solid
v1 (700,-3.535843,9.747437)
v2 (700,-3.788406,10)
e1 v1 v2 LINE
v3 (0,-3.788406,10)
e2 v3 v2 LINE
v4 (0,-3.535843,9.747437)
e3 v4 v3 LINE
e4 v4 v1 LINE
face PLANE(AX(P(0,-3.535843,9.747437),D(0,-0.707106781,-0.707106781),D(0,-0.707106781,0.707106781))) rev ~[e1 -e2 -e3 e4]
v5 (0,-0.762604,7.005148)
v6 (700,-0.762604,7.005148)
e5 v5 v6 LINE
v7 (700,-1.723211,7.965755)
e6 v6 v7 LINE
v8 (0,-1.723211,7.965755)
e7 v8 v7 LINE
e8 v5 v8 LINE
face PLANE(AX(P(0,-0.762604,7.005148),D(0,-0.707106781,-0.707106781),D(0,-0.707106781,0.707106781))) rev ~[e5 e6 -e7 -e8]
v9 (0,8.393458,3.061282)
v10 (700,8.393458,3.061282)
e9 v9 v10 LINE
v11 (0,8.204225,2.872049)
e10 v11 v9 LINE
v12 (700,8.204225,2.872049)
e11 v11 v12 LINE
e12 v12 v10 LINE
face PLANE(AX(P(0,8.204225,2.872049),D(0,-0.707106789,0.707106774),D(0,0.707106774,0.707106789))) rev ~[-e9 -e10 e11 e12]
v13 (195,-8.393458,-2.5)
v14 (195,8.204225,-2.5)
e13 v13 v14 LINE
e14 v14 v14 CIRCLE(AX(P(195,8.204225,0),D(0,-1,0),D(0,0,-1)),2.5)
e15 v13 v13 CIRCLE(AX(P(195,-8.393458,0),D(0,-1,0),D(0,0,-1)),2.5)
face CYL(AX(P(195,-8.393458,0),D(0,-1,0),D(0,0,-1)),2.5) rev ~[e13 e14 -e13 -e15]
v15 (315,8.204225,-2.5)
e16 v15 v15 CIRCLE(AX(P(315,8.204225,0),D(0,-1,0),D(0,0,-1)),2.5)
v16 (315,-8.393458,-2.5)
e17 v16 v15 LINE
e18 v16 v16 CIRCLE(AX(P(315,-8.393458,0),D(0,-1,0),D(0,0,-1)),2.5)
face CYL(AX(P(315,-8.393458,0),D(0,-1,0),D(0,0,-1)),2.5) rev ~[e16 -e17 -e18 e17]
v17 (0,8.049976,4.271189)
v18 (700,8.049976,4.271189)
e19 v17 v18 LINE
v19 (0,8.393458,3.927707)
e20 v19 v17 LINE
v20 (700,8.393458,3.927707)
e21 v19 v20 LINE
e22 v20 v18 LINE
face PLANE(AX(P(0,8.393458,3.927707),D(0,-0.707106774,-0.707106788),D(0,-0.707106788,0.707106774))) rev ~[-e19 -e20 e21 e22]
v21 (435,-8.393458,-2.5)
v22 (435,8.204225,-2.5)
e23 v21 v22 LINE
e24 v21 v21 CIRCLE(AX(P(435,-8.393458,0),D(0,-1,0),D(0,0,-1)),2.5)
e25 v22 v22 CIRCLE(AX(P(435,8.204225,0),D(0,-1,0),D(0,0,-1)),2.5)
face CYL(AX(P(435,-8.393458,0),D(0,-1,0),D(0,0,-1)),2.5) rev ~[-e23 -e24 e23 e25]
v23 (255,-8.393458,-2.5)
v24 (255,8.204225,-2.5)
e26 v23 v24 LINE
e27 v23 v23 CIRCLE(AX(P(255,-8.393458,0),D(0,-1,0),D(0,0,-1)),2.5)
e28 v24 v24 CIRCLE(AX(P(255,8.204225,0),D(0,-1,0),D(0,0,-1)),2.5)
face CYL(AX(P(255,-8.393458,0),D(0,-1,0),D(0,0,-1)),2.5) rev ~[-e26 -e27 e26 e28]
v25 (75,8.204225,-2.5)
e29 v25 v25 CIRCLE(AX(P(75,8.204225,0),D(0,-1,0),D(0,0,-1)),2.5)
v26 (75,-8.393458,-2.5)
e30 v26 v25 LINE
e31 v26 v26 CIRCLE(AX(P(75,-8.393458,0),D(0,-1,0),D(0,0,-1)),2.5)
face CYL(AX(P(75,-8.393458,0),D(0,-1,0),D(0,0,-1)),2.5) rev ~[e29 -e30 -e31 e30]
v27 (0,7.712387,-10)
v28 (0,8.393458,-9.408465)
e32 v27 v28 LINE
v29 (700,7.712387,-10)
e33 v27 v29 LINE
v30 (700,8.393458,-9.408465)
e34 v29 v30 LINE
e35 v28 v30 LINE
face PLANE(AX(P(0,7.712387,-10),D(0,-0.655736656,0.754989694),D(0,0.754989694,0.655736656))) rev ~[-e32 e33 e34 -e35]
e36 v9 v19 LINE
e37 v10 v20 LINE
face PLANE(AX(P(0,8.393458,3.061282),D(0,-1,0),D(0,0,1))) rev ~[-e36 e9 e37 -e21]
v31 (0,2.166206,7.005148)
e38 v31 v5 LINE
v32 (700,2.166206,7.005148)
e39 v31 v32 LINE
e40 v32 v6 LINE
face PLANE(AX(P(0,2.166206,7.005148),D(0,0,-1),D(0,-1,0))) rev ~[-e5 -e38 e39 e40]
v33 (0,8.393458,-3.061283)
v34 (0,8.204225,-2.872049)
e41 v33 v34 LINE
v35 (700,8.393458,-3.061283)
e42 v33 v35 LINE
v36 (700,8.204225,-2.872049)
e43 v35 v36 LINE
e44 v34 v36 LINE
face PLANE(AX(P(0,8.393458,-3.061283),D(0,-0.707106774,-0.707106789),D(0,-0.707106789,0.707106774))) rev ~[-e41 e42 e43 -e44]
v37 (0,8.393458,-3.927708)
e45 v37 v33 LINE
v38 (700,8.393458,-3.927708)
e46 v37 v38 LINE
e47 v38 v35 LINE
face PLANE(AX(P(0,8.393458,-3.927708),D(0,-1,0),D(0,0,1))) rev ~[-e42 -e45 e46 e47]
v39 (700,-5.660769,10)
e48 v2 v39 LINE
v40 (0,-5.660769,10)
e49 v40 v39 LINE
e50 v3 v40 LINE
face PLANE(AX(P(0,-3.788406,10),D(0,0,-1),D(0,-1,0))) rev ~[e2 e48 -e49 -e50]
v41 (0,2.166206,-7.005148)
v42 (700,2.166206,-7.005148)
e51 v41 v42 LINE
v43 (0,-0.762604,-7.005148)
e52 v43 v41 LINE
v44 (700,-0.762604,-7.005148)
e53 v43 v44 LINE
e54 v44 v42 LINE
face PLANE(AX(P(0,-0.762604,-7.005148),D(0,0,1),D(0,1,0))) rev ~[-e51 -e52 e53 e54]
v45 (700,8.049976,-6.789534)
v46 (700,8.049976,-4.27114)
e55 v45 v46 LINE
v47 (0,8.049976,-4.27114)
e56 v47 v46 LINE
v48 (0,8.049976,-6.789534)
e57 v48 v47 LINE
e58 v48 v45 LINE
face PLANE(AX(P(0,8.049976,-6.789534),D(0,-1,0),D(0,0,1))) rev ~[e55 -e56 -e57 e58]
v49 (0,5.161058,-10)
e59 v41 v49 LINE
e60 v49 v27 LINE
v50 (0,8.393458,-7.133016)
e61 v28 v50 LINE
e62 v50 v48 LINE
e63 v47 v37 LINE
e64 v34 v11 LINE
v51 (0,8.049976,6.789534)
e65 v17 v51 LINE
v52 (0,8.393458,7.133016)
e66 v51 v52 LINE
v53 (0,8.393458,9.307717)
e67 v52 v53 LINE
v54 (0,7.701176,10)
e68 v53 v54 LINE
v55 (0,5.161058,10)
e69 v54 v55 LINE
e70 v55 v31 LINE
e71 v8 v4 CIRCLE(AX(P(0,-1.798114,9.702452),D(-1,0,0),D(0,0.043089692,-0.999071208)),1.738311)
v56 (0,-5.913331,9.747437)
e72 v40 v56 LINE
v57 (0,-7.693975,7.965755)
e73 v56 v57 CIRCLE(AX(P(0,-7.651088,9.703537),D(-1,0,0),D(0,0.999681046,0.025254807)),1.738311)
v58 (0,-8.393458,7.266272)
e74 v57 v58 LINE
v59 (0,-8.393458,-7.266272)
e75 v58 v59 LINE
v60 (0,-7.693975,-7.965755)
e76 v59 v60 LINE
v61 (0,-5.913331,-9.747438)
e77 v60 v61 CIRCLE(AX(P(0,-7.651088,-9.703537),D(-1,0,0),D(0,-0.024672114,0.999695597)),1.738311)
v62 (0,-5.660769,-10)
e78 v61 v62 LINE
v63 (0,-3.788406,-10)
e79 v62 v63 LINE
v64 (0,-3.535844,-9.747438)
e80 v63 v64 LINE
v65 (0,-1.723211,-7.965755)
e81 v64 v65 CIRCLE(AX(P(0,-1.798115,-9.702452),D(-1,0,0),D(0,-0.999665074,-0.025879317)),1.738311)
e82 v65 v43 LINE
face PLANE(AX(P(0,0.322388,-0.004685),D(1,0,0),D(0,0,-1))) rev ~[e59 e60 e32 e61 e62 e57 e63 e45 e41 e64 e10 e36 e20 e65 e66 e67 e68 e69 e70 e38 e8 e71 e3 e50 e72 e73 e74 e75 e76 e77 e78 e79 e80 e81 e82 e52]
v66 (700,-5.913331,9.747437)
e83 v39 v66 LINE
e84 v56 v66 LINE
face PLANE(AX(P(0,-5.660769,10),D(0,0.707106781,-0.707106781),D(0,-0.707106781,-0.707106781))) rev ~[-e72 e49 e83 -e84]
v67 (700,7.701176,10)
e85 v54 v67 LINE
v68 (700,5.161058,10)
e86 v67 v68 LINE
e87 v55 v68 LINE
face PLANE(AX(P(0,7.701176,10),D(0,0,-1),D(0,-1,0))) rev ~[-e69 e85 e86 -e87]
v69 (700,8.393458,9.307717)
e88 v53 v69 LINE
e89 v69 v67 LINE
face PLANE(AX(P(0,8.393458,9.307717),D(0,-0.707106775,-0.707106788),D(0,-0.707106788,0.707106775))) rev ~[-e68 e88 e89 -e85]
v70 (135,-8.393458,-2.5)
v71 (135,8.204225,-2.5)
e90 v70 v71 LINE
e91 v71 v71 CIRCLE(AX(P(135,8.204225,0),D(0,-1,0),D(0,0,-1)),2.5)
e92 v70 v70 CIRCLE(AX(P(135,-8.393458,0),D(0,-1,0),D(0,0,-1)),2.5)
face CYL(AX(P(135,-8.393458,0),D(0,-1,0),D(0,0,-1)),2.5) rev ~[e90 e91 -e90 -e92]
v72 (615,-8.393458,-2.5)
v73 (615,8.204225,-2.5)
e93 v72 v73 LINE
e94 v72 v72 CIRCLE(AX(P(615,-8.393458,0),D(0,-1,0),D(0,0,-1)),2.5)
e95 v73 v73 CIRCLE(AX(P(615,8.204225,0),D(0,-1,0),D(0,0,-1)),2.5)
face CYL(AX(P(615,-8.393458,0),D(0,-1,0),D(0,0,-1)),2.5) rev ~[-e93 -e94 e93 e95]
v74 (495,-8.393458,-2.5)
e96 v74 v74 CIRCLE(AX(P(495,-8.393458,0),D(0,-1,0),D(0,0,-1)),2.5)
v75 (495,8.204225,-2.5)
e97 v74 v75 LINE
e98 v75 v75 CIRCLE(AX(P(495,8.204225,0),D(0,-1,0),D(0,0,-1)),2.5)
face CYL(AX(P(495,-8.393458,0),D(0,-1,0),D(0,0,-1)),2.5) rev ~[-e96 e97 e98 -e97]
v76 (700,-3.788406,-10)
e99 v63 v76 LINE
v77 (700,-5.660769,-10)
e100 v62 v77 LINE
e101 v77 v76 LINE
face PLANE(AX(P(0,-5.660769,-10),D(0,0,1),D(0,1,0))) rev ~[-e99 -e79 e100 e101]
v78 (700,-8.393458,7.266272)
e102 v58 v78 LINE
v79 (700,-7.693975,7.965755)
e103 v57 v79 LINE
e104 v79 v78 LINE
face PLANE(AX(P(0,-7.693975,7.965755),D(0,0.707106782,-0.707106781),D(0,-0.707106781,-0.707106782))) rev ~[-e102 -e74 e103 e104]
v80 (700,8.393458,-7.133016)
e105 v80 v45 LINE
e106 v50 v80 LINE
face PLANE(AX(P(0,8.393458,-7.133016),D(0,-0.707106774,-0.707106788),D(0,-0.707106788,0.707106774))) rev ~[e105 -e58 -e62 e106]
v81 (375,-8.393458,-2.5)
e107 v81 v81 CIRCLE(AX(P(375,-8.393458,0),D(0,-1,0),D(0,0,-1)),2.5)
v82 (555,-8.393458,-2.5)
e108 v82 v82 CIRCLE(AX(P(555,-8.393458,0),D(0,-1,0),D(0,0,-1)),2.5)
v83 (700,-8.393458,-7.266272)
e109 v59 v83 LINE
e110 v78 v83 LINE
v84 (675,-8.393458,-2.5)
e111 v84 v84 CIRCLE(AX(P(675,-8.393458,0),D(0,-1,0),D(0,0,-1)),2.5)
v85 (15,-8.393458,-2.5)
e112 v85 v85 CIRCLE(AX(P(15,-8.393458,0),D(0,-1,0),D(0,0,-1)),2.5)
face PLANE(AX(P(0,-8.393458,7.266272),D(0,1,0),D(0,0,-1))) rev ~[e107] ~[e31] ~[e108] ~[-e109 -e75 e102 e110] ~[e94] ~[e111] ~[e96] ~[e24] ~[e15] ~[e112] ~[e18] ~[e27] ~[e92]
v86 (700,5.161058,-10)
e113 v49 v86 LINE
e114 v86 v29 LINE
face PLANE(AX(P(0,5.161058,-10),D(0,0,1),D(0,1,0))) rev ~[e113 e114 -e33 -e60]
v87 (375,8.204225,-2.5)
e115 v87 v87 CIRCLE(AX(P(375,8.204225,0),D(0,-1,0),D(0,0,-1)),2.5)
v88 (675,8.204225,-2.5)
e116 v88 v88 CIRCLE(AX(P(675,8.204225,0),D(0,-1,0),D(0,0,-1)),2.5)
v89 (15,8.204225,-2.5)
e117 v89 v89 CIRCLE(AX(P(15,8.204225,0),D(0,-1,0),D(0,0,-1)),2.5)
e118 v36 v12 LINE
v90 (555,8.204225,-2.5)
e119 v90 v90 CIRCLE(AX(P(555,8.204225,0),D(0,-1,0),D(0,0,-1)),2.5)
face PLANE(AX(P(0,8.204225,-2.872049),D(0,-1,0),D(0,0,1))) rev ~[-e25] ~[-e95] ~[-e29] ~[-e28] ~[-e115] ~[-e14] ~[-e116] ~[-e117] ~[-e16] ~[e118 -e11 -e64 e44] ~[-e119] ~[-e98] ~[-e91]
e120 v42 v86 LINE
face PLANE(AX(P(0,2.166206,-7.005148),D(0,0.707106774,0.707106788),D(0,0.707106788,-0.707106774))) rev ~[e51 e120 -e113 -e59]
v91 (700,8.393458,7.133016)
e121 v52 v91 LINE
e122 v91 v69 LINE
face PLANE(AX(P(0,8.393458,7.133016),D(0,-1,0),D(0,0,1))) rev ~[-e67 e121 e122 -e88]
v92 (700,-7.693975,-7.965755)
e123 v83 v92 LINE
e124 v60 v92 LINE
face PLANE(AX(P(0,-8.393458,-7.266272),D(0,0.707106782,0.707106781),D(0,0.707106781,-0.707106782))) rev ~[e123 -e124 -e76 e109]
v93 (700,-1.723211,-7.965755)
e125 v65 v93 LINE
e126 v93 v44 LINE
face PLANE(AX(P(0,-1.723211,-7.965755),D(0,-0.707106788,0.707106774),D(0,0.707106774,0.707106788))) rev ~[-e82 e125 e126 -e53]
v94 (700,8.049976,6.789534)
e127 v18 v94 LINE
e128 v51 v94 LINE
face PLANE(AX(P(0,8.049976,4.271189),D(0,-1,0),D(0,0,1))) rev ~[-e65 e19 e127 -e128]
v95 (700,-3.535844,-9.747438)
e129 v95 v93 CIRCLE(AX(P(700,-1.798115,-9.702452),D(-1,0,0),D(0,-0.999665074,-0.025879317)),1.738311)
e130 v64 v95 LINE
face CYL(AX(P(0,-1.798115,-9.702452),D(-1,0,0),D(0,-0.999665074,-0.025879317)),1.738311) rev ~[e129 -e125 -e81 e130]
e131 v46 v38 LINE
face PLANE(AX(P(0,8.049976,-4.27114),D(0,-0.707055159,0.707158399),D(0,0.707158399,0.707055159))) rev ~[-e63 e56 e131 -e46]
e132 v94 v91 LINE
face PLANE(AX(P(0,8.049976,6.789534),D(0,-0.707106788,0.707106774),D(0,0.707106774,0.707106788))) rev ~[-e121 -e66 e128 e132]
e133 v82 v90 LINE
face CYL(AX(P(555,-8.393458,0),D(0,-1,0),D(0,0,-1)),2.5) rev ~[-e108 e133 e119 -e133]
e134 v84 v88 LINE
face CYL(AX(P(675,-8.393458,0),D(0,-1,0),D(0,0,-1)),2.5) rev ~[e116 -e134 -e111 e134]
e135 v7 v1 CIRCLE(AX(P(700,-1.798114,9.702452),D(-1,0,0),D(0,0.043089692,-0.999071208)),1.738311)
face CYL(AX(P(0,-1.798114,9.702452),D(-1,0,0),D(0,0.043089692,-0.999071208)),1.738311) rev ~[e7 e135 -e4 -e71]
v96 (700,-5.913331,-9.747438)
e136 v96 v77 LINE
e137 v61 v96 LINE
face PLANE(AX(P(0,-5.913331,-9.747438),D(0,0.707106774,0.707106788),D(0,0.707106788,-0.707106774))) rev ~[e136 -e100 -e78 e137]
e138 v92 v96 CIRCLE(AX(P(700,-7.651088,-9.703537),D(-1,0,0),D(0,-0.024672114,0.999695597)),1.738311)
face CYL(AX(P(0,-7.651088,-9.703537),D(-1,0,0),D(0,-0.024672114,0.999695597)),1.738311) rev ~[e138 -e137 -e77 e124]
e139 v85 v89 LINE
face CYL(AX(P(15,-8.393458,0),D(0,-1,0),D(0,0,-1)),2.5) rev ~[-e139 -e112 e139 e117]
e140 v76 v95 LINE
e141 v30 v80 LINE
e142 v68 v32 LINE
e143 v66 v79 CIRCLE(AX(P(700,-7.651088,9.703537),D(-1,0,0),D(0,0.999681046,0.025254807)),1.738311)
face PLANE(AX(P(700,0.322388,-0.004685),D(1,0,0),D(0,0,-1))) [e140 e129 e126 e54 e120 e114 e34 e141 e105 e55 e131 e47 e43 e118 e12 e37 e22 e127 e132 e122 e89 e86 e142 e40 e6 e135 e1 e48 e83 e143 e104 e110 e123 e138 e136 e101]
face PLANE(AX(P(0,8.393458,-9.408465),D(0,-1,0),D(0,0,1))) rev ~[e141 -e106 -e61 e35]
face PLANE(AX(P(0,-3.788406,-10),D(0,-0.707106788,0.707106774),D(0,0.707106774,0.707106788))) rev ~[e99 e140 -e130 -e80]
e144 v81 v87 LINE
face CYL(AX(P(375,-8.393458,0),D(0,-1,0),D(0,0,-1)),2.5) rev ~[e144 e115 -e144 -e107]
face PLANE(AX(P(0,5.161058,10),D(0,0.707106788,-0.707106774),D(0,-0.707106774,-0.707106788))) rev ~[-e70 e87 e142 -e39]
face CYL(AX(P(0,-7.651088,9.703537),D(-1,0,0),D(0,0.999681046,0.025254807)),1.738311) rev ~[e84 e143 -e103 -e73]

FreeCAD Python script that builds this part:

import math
import FreeCAD as App
import Part
import Sketcher
from FreeCAD import Vector

doc = App.newDocument("Part")
body = doc.addObject("PartDesign::Body", "Body")

# Sketch on YZ plane
sketch1 = body.newObject("Sketcher::SketchObject", "Sketch")
sketch1.AttachmentSupport = (doc.getObject("YZ_Plane"), [""])
sketch1.MapMode = "FlatFace"
sketch1.addGeometry([
    Part.LineSegment(Vector(-7.69, 7.97, 0), Vector(-8.39, 7.27, 0)),  # 0
    Part.LineSegment(Vector(-8.39, 7.27, 0), Vector(-8.39, -7.27, 0)),  # 1
    Part.LineSegment(Vector(-8.39, -7.27, 0), Vector(-7.69, -7.97, 0)),  # 2
    Part.ArcOfCircle(Part.Circle(Vector(-7.65, -9.7, 0), Vector(0, 0, 1), 1.74), math.radians(-1), math.radians(91)),  # 3
    Part.LineSegment(Vector(-5.91, -9.75, 0), Vector(-5.66, -10, 0)),  # 4
    Part.LineSegment(Vector(-5.66, -10, 0), Vector(-3.79, -10, 0)),  # 5
    Part.LineSegment(Vector(-3.79, -10, 0), Vector(-3.54, -9.75, 0)),  # 6
    Part.ArcOfCircle(Part.Circle(Vector(-1.8, -9.7, 0), Vector(0, 0, 1), 1.74), math.radians(88), math.radians(181)),  # 7
    Part.LineSegment(Vector(-1.72, -7.97, 0), Vector(-0.76, -7.01, 0)),  # 8
    Part.LineSegment(Vector(-0.76, -7.01, 0), Vector(2.17, -7.01, 0)),  # 9
    Part.LineSegment(Vector(2.17, -7.01, 0), Vector(5.16, -10, 0)),  # 10
    Part.LineSegment(Vector(5.16, -10, 0), Vector(7.71, -10, 0)),  # 11
    Part.LineSegment(Vector(7.71, -10, 0), Vector(8.39, -9.41, 0)),  # 12
    Part.LineSegment(Vector(8.39, -9.41, 0), Vector(8.39, -7.13, 0)),  # 13
    Part.LineSegment(Vector(8.39, -7.13, 0), Vector(8.05, -6.79, 0)),  # 14
    Part.LineSegment(Vector(8.05, -6.79, 0), Vector(8.05, -4.27, 0)),  # 15
    Part.LineSegment(Vector(8.05, -4.27, 0), Vector(8.39, -3.93, 0)),  # 16
    Part.LineSegment(Vector(8.39, -3.93, 0), Vector(8.39, -3.06, 0)),  # 17
    Part.LineSegment(Vector(8.39, -3.06, 0), Vector(8.2, -2.87, 0)),  # 18
    Part.LineSegment(Vector(8.2, -2.87, 0), Vector(8.2, 2.87, 0)),  # 19
    Part.LineSegment(Vector(8.2, 2.87, 0), Vector(8.39, 3.06, 0)),  # 20
    Part.LineSegment(Vector(8.39, 3.06, 0), Vector(8.39, 3.93, 0)),  # 21
    Part.LineSegment(Vector(8.39, 3.93, 0), Vector(8.05, 4.27, 0)),  # 22
    Part.LineSegment(Vector(8.05, 4.27, 0), Vector(8.05, 6.79, 0)),  # 23
    Part.LineSegment(Vector(8.05, 6.79, 0), Vector(8.39, 7.13, 0)),  # 24
    Part.LineSegment(Vector(8.39, 7.13, 0), Vector(8.39, 9.31, 0)),  # 25
    Part.LineSegment(Vector(8.39, 9.31, 0), Vector(7.7, 10, 0)),  # 26
    Part.LineSegment(Vector(7.7, 10, 0), Vector(5.16, 10, 0)),  # 27
    Part.LineSegment(Vector(5.16, 10, 0), Vector(2.17, 7.01, 0)),  # 28
    Part.LineSegment(Vector(2.17, 7.01, 0), Vector(-0.76, 7.01, 0)),  # 29
    Part.LineSegment(Vector(-0.76, 7.01, 0), Vector(-1.72, 7.97, 0)),  # 30
    Part.ArcOfCircle(Part.Circle(Vector(-1.8, 9.7, 0), Vector(0, 0, 1), 1.74), math.radians(179), math.radians(272)),  # 31
    Part.LineSegment(Vector(-3.54, 9.75, 0), Vector(-3.79, 10, 0)),  # 32
    Part.LineSegment(Vector(-3.79, 10, 0), Vector(-5.66, 10, 0)),  # 33
    Part.LineSegment(Vector(-5.66, 10, 0), Vector(-5.91, 9.75, 0)),  # 34
    Part.ArcOfCircle(Part.Circle(Vector(-7.65, 9.7, 0), Vector(0, 0, 1), 1.74), math.radians(-91), math.radians(1)),  # 35
], False)
sketch1.addConstraint([
    Sketcher.Constraint("Coincident", 0, 2, 1, 1),
    Sketcher.Constraint("Coincident", 1, 2, 2, 1),
    Sketcher.Constraint("Coincident", 2, 2, 3, 2),
    Sketcher.Constraint("Coincident", 3, 1, 4, 1),
    Sketcher.Constraint("Coincident", 4, 2, 5, 1),
    Sketcher.Constraint("Coincident", 5, 2, 6, 1),
    Sketcher.Constraint("Coincident", 6, 2, 7, 2),
    Sketcher.Constraint("Coincident", 7, 1, 8, 1),
    Sketcher.Constraint("Coincident", 8, 2, 9, 1),
    Sketcher.Constraint("Coincident", 9, 2, 10, 1),
    Sketcher.Constraint("Coincident", 10, 2, 11, 1),
    Sketcher.Constraint("Coincident", 11, 2, 12, 1),
    Sketcher.Constraint("Coincident", 12, 2, 13, 1),
    Sketcher.Constraint("Coincident", 13, 2, 14, 1),
    Sketcher.Constraint("Coincident", 14, 2, 15, 1),
    Sketcher.Constraint("Coincident", 15, 2, 16, 1),
    Sketcher.Constraint("Coincident", 16, 2, 17, 1),
    Sketcher.Constraint("Coincident", 17, 2, 18, 1),
    Sketcher.Constraint("Coincident", 18, 2, 19, 1),
    Sketcher.Constraint("Coincident", 19, 2, 20, 1),
    Sketcher.Constraint("Coincident", 20, 2, 21, 1),
    Sketcher.Constraint("Coincident", 21, 2, 22, 1),
    Sketcher.Constraint("Coincident", 22, 2, 23, 1),
    Sketcher.Constraint("Coincident", 23, 2, 24, 1),
    Sketcher.Constraint("Coincident", 24, 2, 25, 1),
    Sketcher.Constraint("Coincident", 25, 2, 26, 1),
    Sketcher.Constraint("Coincident", 26, 2, 27, 1),
    Sketcher.Constraint("Coincident", 27, 2, 28, 1),
    Sketcher.Constraint("Coincident", 28, 2, 29, 1),
    Sketcher.Constraint("Coincident", 29, 2, 30, 1),
    Sketcher.Constraint("Coincident", 30, 2, 31, 2),
    Sketcher.Constraint("Coincident", 31, 1, 32, 1),
    Sketcher.Constraint("Coincident", 32, 2, 33, 1),
    Sketcher.Constraint("Coincident", 33, 2, 34, 1),
    Sketcher.Constraint("Coincident", 34, 2, 35, 2),
    Sketcher.Constraint("Coincident", 35, 1, 0, 1),
    Sketcher.Constraint("Vertical", 1),
    Sketcher.Constraint("Horizontal", 5),
    Sketcher.Constraint("Horizontal", 9),
    Sketcher.Constraint("Horizontal", 11),
    Sketcher.Constraint("Vertical", 13),
    Sketcher.Constraint("Vertical", 15),
    Sketcher.Constraint("Vertical", 17),
    Sketcher.Constraint("Vertical", 19),
    Sketcher.Constraint("Vertical", 21),
    Sketcher.Constraint("Vertical", 23),
    Sketcher.Constraint("Vertical", 25),
    Sketcher.Constraint("Horizontal", 27),
    Sketcher.Constraint("Horizontal", 29),
    Sketcher.Constraint("Horizontal", 33),
    Sketcher.Constraint("Equal", 3, 7),
    Sketcher.Constraint("Equal", 7, 31),
    Sketcher.Constraint("Equal", 31, 35),
    Sketcher.Constraint("Symmetric", 7, 3, 31, 3, -1),
    Sketcher.Constraint("Symmetric", 3, 3, 35, 3, -1),
    Sketcher.Constraint("Symmetric", 17, 2, 20, 2, -1),
    Sketcher.Constraint("Symmetric", 14, 2, 23, 2, -1),
    Sketcher.Constraint("Symmetric", 13, 2, 24, 2, -1),
    Sketcher.Constraint("Symmetric", 10, 2, 27, 2, -1),
    Sketcher.Constraint("Symmetric", 9, 2, 28, 2, -1),
    Sketcher.Constraint("Symmetric", 5, 2, 32, 2, -1),
    Sketcher.Constraint("Perpendicular", 0, 2),
    Sketcher.Constraint("Parallel", 2, 4),
    Sketcher.Constraint("Perpendicular", 4, 6),
    Sketcher.Constraint("Parallel", 6, 8),
    Sketcher.Constraint("Perpendicular", 8, 10),
    Sketcher.Constraint("Parallel", 10, 14),
    Sketcher.Constraint("Parallel", 14, 18),
    Sketcher.Constraint("Perpendicular", 18, 20),
    Sketcher.Constraint("Perpendicular", 20, 22),
    Sketcher.Constraint("Perpendicular", 22, 24),
    Sketcher.Constraint("Perpendicular", 24, 26),
    Sketcher.Constraint("Perpendicular", 28, 30),
    Sketcher.Constraint("Parallel", 30, 32),
    Sketcher.Constraint("Perpendicular", 32, 34),
    Sketcher.Constraint("Horizontal", 3, 1, 6, 2),
    Sketcher.Constraint("Horizontal", 2, 2, 7, 1),
    Sketcher.Constraint("Horizontal", 5, 2, 10, 2),
    Sketcher.Constraint("Horizontal", 31, 1, 34, 2),
    Sketcher.Constraint("Horizontal", 30, 2, 35, 1),
    Sketcher.Constraint("Vertical", 13, 2, 16, 2),
    Sketcher.Constraint("Vertical", 8, 2, 29, 2),
    Sketcher.Constraint("Equal", 17, 21),
    Sketcher.Constraint("DistanceY", 4, 2, -1, 1, 10.0),
    Sketcher.Constraint("Radius", 3, 1.738311),
    Sketcher.Constraint("DistanceY", 19, 1, 19, 2, 5.744098),
    Sketcher.Constraint("DistanceY", 25, 1, 25, 2, 2.174701),
    Sketcher.Constraint("DistanceX", 9, 1, 9, 2, 2.92881),
    Sketcher.Constraint("DistanceX", 11, 1, 11, 2, 2.551329),
    Sketcher.Constraint("DistanceY", 13, 1, 13, 2, 2.275448),
    Sketcher.Constraint("DistanceY", 3, 1, 3, 3, 0.043901),
    Sketcher.Constraint("DistanceX", 6, 2, 10, 2, 8.696902),
    Sketcher.Constraint("DistanceX", 7, 1, 11, 2, 9.435598),
    Sketcher.Constraint("DistanceX", 10, 2, 12, 2, 3.2324),
    Sketcher.Constraint("DistanceX", 26, 2, 23, 2, 0.348801),
    Sketcher.Constraint("Distance", 0, 0.989218),
    Sketcher.Constraint("Distance", 10, 4.23536),
    Sketcher.Constraint("Distance", 16, 0.485721),
    Sketcher.Constraint("DistanceX", 5, 1, 5, 2, 1.872363),
    Sketcher.Constraint("DistanceX", 27, 2, 27, 1, 2.540118),
    Sketcher.Constraint("DistanceY", 15, 1, 15, 2, 2.518395),
    Sketcher.Constraint("DistanceY", 17, 1, 17, 2, 0.866425),
    Sketcher.Constraint("DistanceX", 0, 2, -1, 1, 8.393458),
    Sketcher.Constraint("DistanceX", 3, 1, -1, 1, 5.913331),
])
pad1 = body.newObject("PartDesign::Pad", "Pad")
pad1.Profile = sketch1
pad1.Length = 700

# Sketch on XZ plane
sketch2 = body.newObject("Sketcher::SketchObject", "Sketch001")
sketch2.AttachmentSupport = (doc.getObject("XZ_Plane"), [""])
sketch2.MapMode = "FlatFace"
sketch2.AttachmentOffset = App.Placement(Vector(0, 0, 8.393458), App.Rotation())
sketch2.addGeometry(Part.Circle(Vector(15, 0, 0), Vector(0, 0, 1), 2.5), False)
sketch2.addConstraint([
    Sketcher.Constraint("PointOnObject", 0, 3, -1),
    Sketcher.Constraint("Diameter", 0, 5.0),
    Sketcher.Constraint("DistanceX", -1, 1, 0, 3, 15.0),
])
pocket1 = body.newObject("PartDesign::Pocket", "Pocket")
pocket1.Profile = sketch2
pocket1.Length = 20
doc.recompute()

linearpattern = body.newObject("PartDesign::LinearPattern", "LinearPattern")
linearpattern.Originals = [pocket1]
linearpattern.Direction = (doc.getObject("X_Axis"), [""])
linearpattern.Mode = "offset"
linearpattern.Offset = 60
linearpattern.Occurrences = 12
body.Tip = linearpattern

doc.recompute()
